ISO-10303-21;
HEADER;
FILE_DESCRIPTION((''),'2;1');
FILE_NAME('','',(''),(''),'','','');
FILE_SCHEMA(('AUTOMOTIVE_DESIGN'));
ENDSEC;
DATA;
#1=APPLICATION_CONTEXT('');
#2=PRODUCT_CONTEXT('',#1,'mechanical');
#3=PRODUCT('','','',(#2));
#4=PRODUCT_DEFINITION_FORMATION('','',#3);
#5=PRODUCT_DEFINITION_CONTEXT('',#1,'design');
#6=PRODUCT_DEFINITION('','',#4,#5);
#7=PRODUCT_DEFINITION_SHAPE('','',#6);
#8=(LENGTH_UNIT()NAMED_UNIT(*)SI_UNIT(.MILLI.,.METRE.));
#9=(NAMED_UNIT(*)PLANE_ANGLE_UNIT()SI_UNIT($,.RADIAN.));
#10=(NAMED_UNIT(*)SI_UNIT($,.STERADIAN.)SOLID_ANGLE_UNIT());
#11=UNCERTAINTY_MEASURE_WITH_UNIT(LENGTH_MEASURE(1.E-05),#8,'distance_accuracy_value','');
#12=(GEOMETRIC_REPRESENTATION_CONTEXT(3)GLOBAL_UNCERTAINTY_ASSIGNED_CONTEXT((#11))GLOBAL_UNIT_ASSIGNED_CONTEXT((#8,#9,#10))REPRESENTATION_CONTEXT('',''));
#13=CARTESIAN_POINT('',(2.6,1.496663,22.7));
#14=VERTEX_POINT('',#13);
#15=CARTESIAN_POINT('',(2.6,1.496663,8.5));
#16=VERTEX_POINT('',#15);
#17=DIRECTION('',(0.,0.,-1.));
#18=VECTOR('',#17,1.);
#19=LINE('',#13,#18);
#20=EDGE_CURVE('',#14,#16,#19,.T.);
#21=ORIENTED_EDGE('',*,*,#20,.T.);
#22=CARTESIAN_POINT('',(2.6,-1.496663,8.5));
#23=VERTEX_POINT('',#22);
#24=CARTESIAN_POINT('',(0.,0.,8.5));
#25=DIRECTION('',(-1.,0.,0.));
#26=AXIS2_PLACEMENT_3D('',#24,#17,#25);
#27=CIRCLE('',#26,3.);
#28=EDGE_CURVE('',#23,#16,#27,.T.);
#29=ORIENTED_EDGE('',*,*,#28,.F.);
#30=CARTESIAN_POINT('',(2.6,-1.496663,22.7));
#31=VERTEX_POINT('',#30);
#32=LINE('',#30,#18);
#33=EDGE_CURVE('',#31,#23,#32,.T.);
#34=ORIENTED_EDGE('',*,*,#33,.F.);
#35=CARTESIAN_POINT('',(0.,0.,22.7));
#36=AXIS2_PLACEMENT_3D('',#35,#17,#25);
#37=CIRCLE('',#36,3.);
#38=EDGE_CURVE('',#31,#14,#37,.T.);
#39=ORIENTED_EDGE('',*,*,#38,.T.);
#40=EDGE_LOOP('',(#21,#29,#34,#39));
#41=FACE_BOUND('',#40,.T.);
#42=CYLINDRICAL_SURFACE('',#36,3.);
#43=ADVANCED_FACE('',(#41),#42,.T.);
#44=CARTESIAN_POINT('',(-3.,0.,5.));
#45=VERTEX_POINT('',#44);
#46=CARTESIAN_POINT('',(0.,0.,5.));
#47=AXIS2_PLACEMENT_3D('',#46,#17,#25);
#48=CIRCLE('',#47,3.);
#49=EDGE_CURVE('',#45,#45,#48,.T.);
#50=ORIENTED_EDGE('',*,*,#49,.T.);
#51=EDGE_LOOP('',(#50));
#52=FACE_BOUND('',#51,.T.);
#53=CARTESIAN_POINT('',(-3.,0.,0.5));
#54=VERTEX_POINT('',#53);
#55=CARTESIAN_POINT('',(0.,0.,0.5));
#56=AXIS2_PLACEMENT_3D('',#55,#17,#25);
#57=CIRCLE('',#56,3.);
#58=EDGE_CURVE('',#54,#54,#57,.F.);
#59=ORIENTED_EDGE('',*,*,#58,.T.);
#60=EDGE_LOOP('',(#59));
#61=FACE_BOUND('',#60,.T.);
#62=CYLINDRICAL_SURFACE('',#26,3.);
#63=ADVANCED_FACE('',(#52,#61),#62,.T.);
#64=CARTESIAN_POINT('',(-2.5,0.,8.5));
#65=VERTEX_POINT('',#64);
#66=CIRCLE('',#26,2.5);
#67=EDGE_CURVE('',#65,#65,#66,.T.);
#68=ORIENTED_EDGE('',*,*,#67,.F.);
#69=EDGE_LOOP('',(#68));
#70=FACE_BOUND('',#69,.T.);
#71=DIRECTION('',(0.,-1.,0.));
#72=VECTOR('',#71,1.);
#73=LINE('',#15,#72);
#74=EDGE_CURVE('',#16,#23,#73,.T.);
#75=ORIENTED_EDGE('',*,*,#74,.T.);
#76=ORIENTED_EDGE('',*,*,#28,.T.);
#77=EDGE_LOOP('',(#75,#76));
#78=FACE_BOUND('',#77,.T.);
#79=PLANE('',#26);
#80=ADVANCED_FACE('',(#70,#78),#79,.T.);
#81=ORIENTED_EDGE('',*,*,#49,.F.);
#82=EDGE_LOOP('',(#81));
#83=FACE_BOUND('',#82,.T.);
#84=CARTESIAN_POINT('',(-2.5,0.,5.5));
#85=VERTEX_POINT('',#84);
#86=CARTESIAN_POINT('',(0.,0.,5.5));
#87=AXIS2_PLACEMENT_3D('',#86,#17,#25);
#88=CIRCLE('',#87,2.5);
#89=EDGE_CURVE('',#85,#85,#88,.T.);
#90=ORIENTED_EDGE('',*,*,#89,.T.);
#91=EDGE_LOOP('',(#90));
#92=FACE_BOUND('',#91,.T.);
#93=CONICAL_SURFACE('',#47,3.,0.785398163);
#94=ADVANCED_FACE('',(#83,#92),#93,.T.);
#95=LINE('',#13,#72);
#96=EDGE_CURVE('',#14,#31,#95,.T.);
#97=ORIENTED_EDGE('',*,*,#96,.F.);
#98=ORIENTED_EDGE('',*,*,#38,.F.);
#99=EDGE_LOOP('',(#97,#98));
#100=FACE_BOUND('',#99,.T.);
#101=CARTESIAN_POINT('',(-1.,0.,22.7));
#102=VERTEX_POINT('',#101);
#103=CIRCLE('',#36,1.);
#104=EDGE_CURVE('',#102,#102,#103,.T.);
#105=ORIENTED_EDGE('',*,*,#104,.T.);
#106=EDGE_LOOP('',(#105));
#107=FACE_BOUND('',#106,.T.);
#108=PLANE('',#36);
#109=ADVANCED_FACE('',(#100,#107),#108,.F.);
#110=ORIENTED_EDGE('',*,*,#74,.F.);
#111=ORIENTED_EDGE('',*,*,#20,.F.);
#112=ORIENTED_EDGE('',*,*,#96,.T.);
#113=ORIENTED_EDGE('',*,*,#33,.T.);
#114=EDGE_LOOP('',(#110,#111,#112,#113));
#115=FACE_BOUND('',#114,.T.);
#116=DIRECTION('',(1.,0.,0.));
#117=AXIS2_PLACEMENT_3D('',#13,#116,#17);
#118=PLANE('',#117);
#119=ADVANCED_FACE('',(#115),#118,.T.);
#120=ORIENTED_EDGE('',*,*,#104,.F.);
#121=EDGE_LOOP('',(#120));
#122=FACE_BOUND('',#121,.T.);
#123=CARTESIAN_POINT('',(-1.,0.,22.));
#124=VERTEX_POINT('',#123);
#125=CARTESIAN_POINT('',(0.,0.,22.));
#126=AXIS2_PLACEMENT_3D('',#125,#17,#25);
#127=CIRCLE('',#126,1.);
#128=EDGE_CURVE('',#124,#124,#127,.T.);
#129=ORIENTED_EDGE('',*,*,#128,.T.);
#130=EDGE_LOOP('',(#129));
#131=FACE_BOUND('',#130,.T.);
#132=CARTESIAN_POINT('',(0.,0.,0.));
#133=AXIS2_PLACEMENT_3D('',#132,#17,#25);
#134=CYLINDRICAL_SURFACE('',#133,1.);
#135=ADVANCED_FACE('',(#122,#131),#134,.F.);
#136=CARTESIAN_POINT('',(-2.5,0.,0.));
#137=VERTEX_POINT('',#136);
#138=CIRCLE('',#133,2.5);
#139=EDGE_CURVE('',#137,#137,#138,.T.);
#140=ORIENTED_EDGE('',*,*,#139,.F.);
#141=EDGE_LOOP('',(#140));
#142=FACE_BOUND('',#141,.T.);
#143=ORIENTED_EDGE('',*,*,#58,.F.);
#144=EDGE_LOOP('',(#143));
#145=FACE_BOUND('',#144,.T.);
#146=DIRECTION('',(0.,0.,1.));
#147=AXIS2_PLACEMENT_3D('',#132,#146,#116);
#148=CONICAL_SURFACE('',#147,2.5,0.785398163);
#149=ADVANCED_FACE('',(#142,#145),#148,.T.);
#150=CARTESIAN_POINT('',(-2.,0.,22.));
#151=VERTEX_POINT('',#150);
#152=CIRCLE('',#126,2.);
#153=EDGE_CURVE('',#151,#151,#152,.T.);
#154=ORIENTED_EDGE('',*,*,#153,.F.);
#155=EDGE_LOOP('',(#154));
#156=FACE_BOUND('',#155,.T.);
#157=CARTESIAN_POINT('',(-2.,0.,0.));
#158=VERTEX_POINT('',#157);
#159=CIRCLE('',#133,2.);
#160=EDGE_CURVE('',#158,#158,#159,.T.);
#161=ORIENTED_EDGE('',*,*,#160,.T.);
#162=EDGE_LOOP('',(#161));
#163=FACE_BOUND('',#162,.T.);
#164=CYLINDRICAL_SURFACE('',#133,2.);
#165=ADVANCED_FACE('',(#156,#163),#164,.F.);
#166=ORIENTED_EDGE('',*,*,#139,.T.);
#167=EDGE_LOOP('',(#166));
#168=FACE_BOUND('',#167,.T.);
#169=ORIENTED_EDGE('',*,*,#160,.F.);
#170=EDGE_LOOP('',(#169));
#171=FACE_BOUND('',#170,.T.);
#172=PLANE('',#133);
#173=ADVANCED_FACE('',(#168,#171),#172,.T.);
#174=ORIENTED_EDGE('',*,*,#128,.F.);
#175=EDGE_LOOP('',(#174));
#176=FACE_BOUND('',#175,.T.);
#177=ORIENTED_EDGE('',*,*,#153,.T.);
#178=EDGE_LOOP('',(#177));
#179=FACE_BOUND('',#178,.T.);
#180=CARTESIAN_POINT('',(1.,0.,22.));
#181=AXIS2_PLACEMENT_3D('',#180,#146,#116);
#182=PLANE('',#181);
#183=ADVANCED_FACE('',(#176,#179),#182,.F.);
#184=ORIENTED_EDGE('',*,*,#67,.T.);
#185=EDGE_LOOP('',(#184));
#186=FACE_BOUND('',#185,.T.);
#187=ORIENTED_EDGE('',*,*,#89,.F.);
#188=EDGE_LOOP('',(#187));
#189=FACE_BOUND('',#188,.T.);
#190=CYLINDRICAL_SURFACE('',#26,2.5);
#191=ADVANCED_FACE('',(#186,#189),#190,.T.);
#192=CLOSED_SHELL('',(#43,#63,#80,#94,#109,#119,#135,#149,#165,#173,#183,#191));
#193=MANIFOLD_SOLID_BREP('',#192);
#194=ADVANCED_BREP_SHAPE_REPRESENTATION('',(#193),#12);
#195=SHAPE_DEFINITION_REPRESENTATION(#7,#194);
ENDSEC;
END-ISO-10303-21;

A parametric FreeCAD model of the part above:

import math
import FreeCAD as App
import Part
import Sketcher
Q = App.Units.Quantity


def edges_at(feature, points):
    """Names of the edges that pass closest to the given points."""
    edges = feature.Shape.Edges
    near = lambda p: min(range(len(edges)), key=lambda i: edges[i].distToShape(Part.Vertex(*p))[0])
    return sorted({f"Edge{near(p) + 1}" for p in points})


def add_polygon(sketch, points):
    """Adds a closed chain of lines whose ends are joined by coincident constraints."""
    first, n = sketch.GeometryCount, len(points)
    for a, b in zip(points, points[1:] + points[:1]):
        sketch.addGeometry(Part.LineSegment(App.Vector(*a, 0), App.Vector(*b, 0)), False)
    for i in range(n):
        sketch.addConstraint(Sketcher.Constraint("Coincident", first + i, 2, first + (i + 1) % n, 1))

doc = App.newDocument("Part")
body = doc.addObject("PartDesign::Body", "Body")

# Sketch on XY plane
sketch1 = body.newObject("Sketcher::SketchObject", "Sketch")
sketch1.AttachmentSupport = (doc.getObject("XY_Plane"), [""])
sketch1.MapMode = "FlatFace"
sketch1.AttachmentOffset = App.Placement(App.Vector(0, 0, 8.5), App.Rotation())
sketch1.addGeometry(Part.LineSegment(App.Vector(2.6, 1.5, 0), App.Vector(2.6, -1.5, 0)), False)
sketch1.addGeometry(Part.ArcOfCircle(Part.Circle(App.Vector(0, 0, 0), App.Vector(0, 0, 1), 3), math.radians(30), math.radians(330)), False)
sketch1.addConstraint(Sketcher.Constraint("Coincident", 0, 1, 1, 1))
sketch1.addConstraint(Sketcher.Constraint("Coincident", 1, 2, 0, 2))
sketch1.addConstraint(Sketcher.Constraint("Vertical", 0))
sketch1.addConstraint(Sketcher.Constraint("Coincident", 1, 3, -1, 1))
sketch1.addConstraint(Sketcher.Constraint("Radius", 1, 3.0))
sketch1.addConstraint(Sketcher.Constraint("DistanceX", -1, 1, 0, 1, 2.6))
pad1 = body.newObject("PartDesign::Pad", "Pad")
pad1.Profile = sketch1
pad1.Length = 14.2

# Sketch on XZ plane
sketch2 = body.newObject("Sketcher::SketchObject", "Sketch001")
sketch2.AttachmentSupport = (doc.getObject("XZ_Plane"), [""])
sketch2.MapMode = "FlatFace"
add_polygon(sketch2, [(2.5, 8.5), (0, 8.5), (0, 0), (3, 0), (3, 5), (2.5, 5.5)])  # lines 0-5
sketch2.addConstraint(Sketcher.Constraint("Horizontal", 0))
sketch2.addConstraint(Sketcher.Constraint("Vertical", 1))
sketch2.addConstraint(Sketcher.Constraint("Horizontal", 2))
sketch2.addConstraint(Sketcher.Constraint("Vertical", 3))
sketch2.addConstraint(Sketcher.Constraint("Vertical", 5))
sketch2.addConstraint(Sketcher.Constraint("Coincident", 1, 2, -1, 1))
sketch2.addConstraint(Sketcher.Constraint("Equal", 2, 5))
sketch2.addConstraint(Sketcher.Constraint("DistanceX", 2, 1, 2, 2, 3.0))
sketch2.addConstraint(Sketcher.Constraint("DistanceY", 3, 1, 3, 2, 5.0))
sketch2.addConstraint(Sketcher.Constraint("Angle", 4, Q("135 deg")))
sketch2.addConstraint(Sketcher.Constraint("DistanceX", 0, 2, 0, 1, 2.5))
revolution = body.newObject("PartDesign::Revolution", "Revolution")
revolution.Profile = sketch2
revolution.ReferenceAxis = (sketch2, ["V_Axis"])
revolution.Angle = 360

# Sketch on XY plane
sketch3 = body.newObject("Sketcher::SketchObject", "Sketch002")
sketch3.AttachmentSupport = (doc.getObject("XY_Plane"), [""])
sketch3.MapMode = "FlatFace"
sketch3.addGeometry(Part.Circle(App.Vector(0, 0, 0), App.Vector(0, 0, 1), 1), False)
sketch3.addConstraint(Sketcher.Constraint("Coincident", 0, 3, -1, 1))
sketch3.addConstraint(Sketcher.Constraint("Diameter", 0, 2.0))
doc.recompute()
hole = body.newObject("PartDesign::Hole", "Hole")
hole.Profile = sketch3
hole.ThreadType = "None"
hole.Diameter = 2
hole.DepthType = "ThroughAll"
hole.HoleCutType = "Counterbore"
hole.HoleCutDiameter = 4
hole.HoleCutDepth = 22
hole.Reversed = True
doc.recompute()

chamfer = body.newObject("PartDesign::Chamfer", "Chamfer")
chamfer.Base = (hole, edges_at(hole, [(3, 0, 0)]))
chamfer.Size = 0.5

doc.recompute()
